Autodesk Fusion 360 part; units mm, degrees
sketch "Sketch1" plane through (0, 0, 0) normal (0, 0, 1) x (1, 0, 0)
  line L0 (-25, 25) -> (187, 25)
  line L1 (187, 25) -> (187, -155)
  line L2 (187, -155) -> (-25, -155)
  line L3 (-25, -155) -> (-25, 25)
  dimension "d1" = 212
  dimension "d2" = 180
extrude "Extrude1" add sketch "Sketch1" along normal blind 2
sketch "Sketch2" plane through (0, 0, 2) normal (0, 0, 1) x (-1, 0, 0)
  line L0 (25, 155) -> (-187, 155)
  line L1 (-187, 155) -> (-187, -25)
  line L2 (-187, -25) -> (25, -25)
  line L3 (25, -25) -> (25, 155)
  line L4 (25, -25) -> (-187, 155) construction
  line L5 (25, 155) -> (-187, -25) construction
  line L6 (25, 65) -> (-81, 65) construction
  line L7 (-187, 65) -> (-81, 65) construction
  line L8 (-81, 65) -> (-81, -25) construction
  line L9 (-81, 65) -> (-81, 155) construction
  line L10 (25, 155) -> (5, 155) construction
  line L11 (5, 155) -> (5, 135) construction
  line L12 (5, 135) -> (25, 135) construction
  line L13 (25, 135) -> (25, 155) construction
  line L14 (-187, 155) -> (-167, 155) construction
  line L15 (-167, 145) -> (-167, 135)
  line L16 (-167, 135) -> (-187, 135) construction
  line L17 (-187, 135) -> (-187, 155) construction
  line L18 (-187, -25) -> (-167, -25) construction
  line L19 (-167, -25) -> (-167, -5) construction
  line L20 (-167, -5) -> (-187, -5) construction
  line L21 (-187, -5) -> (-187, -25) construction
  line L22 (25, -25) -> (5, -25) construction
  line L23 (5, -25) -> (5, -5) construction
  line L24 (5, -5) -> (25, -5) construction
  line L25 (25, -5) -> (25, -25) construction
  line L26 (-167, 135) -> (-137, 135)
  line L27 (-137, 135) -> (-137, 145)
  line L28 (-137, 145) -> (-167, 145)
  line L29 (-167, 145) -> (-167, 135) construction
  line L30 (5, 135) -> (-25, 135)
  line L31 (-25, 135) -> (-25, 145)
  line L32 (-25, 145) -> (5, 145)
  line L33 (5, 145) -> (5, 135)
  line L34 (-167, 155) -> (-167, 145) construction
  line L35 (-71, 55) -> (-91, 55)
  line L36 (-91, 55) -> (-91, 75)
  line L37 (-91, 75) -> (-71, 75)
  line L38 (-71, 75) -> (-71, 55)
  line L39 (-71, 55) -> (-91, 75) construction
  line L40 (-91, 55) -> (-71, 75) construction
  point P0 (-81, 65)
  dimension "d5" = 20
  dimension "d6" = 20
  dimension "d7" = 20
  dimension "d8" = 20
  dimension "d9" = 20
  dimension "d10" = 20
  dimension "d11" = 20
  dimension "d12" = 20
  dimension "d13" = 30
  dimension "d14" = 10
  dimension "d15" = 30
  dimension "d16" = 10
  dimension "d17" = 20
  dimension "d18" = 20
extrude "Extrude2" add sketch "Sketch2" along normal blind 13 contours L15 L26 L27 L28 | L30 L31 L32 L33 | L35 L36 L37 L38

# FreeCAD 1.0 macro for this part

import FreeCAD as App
import Part
import Sketcher

V = App.Vector


def add_polygon(sketch, points):
    """Adds a closed chain of lines whose ends are joined by coincident constraints."""
    first, n = sketch.GeometryCount, len(points)
    for a, b in zip(points, points[1:] + points[:1]):
        sketch.addGeometry(Part.LineSegment(App.Vector(*a, 0), App.Vector(*b, 0)), False)
    for i in range(n):
        sketch.addConstraint(Sketcher.Constraint("Coincident", first + i, 2, first + (i + 1) % n, 1))

doc = App.newDocument("Part")
body = doc.addObject("PartDesign::Body", "Body")

# Sketch on XY plane
sketch1 = body.newObject("Sketcher::SketchObject", "Sketch")
sketch1.AttachmentSupport = (doc.getObject("XY_Plane"), [""])
sketch1.MapMode = "FlatFace"
add_polygon(sketch1, [(187, 25), (-25, 25), (-25, -155), (187, -155)])  # lines 0-3
sketch1.addConstraint([
    Sketcher.Constraint("Horizontal", 0),
    Sketcher.Constraint("Vertical", 1),
    Sketcher.Constraint("Horizontal", 2),
    Sketcher.Constraint("Vertical", 3),
    Sketcher.Constraint("DistanceX", 0, 2, 0, 1, 212.0),
    Sketcher.Constraint("DistanceY", 1, 2, 1, 1, 180.0),
    Sketcher.Constraint("DistanceX", 0, 2, -1, 1, 25.0),
    Sketcher.Constraint("DistanceY", -1, 1, 0, 2, 25.0),
])
pad1 = body.newObject("PartDesign::Pad", "Pad")
pad1.Profile = sketch1
pad1.Length = 2

# Sketch on XY plane
sketch2 = body.newObject("Sketcher::SketchObject", "Sketch001")
sketch2.AttachmentSupport = (doc.getObject("XY_Plane"), [""])
sketch2.MapMode = "FlatFace"
sketch2.AttachmentOffset = App.Placement(V(0, 0, 2), App.Rotation())
add_polygon(sketch2, [(137, -145), (167, -145), (167, -135), (137, -135)])  # lines 0-3
add_polygon(sketch2, [(25, -135), (-5, -135), (-5, -145), (25, -145)])  # lines 4-7
add_polygon(sketch2, [(91, -55), (71, -55), (71, -75), (91, -75)])  # lines 8-11
sketch2.addConstraint([
    Sketcher.Constraint("Horizontal", 0),
    Sketcher.Constraint("Vertical", 1),
    Sketcher.Constraint("Horizontal", 2),
    Sketcher.Constraint("Vertical", 3),
    Sketcher.Constraint("Horizontal", 4),
    Sketcher.Constraint("Vertical", 5),
    Sketcher.Constraint("Horizontal", 6),
    Sketcher.Constraint("Vertical", 7),
    Sketcher.Constraint("Horizontal", 8),
    Sketcher.Constraint("Vertical", 9),
    Sketcher.Constraint("Horizontal", 10),
    Sketcher.Constraint("Vertical", 11),
    Sketcher.Constraint("Horizontal", 2, 2, 4, 2),
    Sketcher.Constraint("Horizontal", 3, 2, 5, 2),
    Sketcher.Constraint("Equal", 2, 4),
    Sketcher.Constraint("Equal", 10, 9),
    Sketcher.Constraint("DistanceX", 0, 1, 0, 2, 30.0),
    Sketcher.Constraint("DistanceX", 8, 2, 8, 1, 20.0),
    Sketcher.Constraint("DistanceY", 1, 1, 1, 2, 10.0),
    Sketcher.Constraint("DistanceX", -1, 1, 0, 2, 167.0),
    Sketcher.Constraint("DistanceY", 0, 2, -1, 1, 145.0),
    Sketcher.Constraint("DistanceX", 4, 2, -1, 1, 5.0),
    Sketcher.Constraint("DistanceX", -1, 1, 8, 2, 71.0),
    Sketcher.Constraint("DistanceY", 8, 2, -1, 1, 55.0),
])
pad2 = body.newObject("PartDesign::Pad", "Pad001")
pad2.Profile = sketch2
pad2.Length = 13

doc.recompute()
